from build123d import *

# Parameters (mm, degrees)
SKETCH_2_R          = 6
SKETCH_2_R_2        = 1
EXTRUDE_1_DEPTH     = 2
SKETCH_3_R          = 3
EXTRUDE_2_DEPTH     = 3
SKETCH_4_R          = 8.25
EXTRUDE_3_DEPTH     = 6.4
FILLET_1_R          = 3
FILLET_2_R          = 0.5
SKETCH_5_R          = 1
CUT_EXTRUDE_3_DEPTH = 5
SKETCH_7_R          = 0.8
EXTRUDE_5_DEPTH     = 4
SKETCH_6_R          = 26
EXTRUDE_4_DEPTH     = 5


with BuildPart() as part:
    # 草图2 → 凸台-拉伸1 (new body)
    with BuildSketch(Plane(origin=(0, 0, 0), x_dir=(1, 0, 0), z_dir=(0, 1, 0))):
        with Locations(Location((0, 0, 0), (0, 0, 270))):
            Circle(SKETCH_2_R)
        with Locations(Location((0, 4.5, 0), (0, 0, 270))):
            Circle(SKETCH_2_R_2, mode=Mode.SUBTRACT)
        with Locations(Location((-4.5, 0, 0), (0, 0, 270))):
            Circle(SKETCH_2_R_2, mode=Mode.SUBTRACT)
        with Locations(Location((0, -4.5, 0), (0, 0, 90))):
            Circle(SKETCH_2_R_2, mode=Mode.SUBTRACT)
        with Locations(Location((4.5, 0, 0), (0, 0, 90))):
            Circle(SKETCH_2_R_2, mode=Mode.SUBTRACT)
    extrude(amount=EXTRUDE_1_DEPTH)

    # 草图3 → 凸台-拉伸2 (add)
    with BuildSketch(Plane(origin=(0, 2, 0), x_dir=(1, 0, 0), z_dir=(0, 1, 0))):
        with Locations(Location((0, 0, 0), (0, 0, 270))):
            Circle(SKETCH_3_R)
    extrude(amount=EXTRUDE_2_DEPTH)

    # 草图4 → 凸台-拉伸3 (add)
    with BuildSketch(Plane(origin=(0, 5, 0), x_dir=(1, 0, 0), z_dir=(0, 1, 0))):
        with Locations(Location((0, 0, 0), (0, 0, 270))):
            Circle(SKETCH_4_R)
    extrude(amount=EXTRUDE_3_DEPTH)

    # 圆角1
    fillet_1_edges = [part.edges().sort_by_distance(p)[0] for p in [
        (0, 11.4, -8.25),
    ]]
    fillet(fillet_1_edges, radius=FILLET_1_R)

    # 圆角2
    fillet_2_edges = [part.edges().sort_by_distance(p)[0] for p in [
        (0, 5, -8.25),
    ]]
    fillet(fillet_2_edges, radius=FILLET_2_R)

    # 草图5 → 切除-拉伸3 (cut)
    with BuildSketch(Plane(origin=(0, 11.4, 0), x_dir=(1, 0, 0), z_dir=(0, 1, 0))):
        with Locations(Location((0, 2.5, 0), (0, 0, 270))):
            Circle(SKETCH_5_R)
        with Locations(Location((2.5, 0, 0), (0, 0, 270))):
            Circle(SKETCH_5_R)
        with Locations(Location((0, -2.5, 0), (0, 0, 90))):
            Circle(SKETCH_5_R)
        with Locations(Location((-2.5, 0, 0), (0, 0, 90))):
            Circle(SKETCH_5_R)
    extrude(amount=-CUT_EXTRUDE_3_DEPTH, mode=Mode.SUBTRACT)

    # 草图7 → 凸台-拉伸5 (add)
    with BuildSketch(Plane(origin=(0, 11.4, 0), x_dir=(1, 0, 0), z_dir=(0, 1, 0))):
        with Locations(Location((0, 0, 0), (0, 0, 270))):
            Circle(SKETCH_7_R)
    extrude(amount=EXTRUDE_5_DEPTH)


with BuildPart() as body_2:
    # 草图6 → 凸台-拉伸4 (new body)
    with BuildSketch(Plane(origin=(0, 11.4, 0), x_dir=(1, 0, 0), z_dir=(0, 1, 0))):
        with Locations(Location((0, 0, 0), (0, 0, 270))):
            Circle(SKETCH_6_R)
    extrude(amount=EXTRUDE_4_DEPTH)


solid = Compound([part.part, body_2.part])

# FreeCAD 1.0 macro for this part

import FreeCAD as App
import Part
import Sketcher
from FreeCAD import Vector


def edges_at(feature, points):
    """Names of the edges that pass closest to the given points."""
    edges = feature.Shape.Edges
    near = lambda p: min(range(len(edges)), key=lambda i: edges[i].distToShape(Part.Vertex(*p))[0])
    return sorted({f"Edge{near(p) + 1}" for p in points})

doc = App.newDocument("Part")
body = doc.addObject("PartDesign::Body", "Body")

sketch1 = doc.addObject("Sketcher::SketchObject", "Sketch")
body.addObject(sketch1)
sketch1.AttachmentSupport = (doc.XZ_Plane, [""])
sketch1.MapMode = "FlatFace"
sketch1.addGeometry([
    Part.Circle(Vector(0, 0, 0), Vector(0, 0, 1), 6),
    Part.Circle(Vector(0, -4.5, 0), Vector(0, 0, 1), 1),
    Part.Circle(Vector(-4.5, 0, 0), Vector(0, 0, 1), 1),
    Part.Circle(Vector(4.5, 0, 0), Vector(0, 0, 1), 1),
    Part.Circle(Vector(0, 4.5, 0), Vector(0, 0, 1), 1),
], False)
sketch1.addConstraint([
    Sketcher.Constraint("Coincident", 0, 3, -1, 1),
    Sketcher.Constraint("Equal", 1, 2),
    Sketcher.Constraint("Equal", 2, 3),
    Sketcher.Constraint("Equal", 3, 4),
    Sketcher.Constraint("Symmetric", 2, 3, 3, 3, -1, 1),
    Sketcher.Constraint("Symmetric", 1, 3, 4, 3, -1, 1),
    Sketcher.Constraint("PointOnObject", 1, 3, -2),
    Sketcher.Constraint("PointOnObject", 2, 3, -1),
    Sketcher.Constraint("Diameter", 0, 12.0),
    Sketcher.Constraint("Diameter", 1, 2.0),
    Sketcher.Constraint("DistanceX", 2, 3, 3, 3, 9.0),
    Sketcher.Constraint("DistanceY", 1, 3, 4, 3, 9.0),
])
pad1 = doc.addObject("PartDesign::Pad", "Pad")
body.addObject(pad1)
pad1.Profile = sketch1
pad1.Length = 2
pad1.Reversed = True

sketch2 = doc.addObject("Sketcher::SketchObject", "Sketch001")
body.addObject(sketch2)
sketch2.AttachmentSupport = (doc.XZ_Plane, [""])
sketch2.MapMode = "FlatFace"
sketch2.AttachmentOffset = App.Placement(Vector(0, 0, -2), App.Rotation())
sketch2.addGeometry(Part.Circle(Vector(0, 0, 0), Vector(0, 0, 1), 3), False)
sketch2.addConstraint([
    Sketcher.Constraint("Coincident", 0, 3, -1, 1),
    Sketcher.Constraint("Diameter", 0, 6.0),
])
pad2 = doc.addObject("PartDesign::Pad", "Pad001")
body.addObject(pad2)
pad2.Profile = sketch2
pad2.Length = 3
pad2.Reversed = True

sketch3 = doc.addObject("Sketcher::SketchObject", "Sketch002")
body.addObject(sketch3)
sketch3.AttachmentSupport = (doc.XZ_Plane, [""])
sketch3.MapMode = "FlatFace"
sketch3.AttachmentOffset = App.Placement(Vector(0, 0, -5), App.Rotation())
sketch3.addGeometry(Part.Circle(Vector(0, 0, 0), Vector(0, 0, 1), 8), False)
sketch3.addConstraint([
    Sketcher.Constraint("Coincident", 0, 3, -1, 1),
    Sketcher.Constraint("Diameter", 0, 16.5),
])
pad3 = doc.addObject("PartDesign::Pad", "Pad002")
body.addObject(pad3)
pad3.Profile = sketch3
pad3.Length = 6.4
pad3.Reversed = True
doc.recompute()

fillet = doc.addObject("PartDesign::Fillet", "Fillet")
body.addObject(fillet)
fillet.Base = (pad3, edges_at(pad3, [(0, 11.4, -8.25)]))
fillet.Radius = 3
doc.recompute()

fillet2 = doc.addObject("PartDesign::Fillet", "Fillet001")
body.addObject(fillet2)
fillet2.Base = (fillet, edges_at(fillet, [(0, 5, -8.25)]))
fillet2.Radius = 0.5

sketch4 = doc.addObject("Sketcher::SketchObject", "Sketch003")
body.addObject(sketch4)
sketch4.AttachmentSupport = (doc.XZ_Plane, [""])
sketch4.MapMode = "FlatFace"
sketch4.AttachmentOffset = App.Placement(Vector(0, 0, -11.4), App.Rotation())
sketch4.addGeometry([
    Part.Circle(Vector(0, -2.5, 0), Vector(0, 0, 1), 1),
    Part.Circle(Vector(2.5, 0, 0), Vector(0, 0, 1), 1),
    Part.Circle(Vector(0, 2.5, 0), Vector(0, 0, 1), 1),
    Part.Circle(Vector(-2.5, 0, 0), Vector(0, 0, 1), 1),
], False)
sketch4.addConstraint([
    Sketcher.Constraint("Equal", 0, 1),
    Sketcher.Constraint("Equal", 1, 2),
    Sketcher.Constraint("Equal", 2, 3),
    Sketcher.Constraint("Symmetric", 0, 3, 2, 3, -1, 1),
    Sketcher.Constraint("Symmetric", 1, 3, 3, 3, -1, 1),
    Sketcher.Constraint("PointOnObject", 0, 3, -2),
    Sketcher.Constraint("PointOnObject", 1, 3, -1),
    Sketcher.Constraint("Diameter", 0, 2.0),
    Sketcher.Constraint("DistanceY", 0, 3, 2, 3, 5.0),
    Sketcher.Constraint("DistanceX", 3, 3, 1, 3, 5.0),
])
pocket1 = doc.addObject("PartDesign::Pocket", "Pocket")
body.addObject(pocket1)
pocket1.Profile = sketch4
pocket1.Length = 5
pocket1.Reversed = True

sketch5 = doc.addObject("Sketcher::SketchObject", "Sketch004")
body.addObject(sketch5)
sketch5.AttachmentSupport = (doc.XZ_Plane, [""])
sketch5.MapMode = "FlatFace"
sketch5.AttachmentOffset = App.Placement(Vector(0, 0, -11.4), App.Rotation())
sketch5.addGeometry(Part.Circle(Vector(0, 0, 0), Vector(0, 0, 1), 0.8), False)
sketch5.addConstraint([
    Sketcher.Constraint("Coincident", 0, 3, -1, 1),
    Sketcher.Constraint("Diameter", 0, 1.6),
])
pad4 = doc.addObject("PartDesign::Pad", "Pad003")
body.addObject(pad4)
pad4.Profile = sketch5
pad4.Length = 4
pad4.Reversed = True
body2 = doc.addObject("PartDesign::Body", "Body001")

sketch6 = doc.addObject("Sketcher::SketchObject", "Sketch005")
body2.addObject(sketch6)
sketch6.AttachmentSupport = (doc.getObject("XZ_Plane001"), [""])
sketch6.MapMode = "FlatFace"
sketch6.AttachmentOffset = App.Placement(Vector(0, 0, -11.4), App.Rotation())
sketch6.addGeometry(Part.Circle(Vector(0, 0, 0), Vector(0, 0, 1), 26), False)
sketch6.addConstraint([
    Sketcher.Constraint("Coincident", 0, 3, -1, 1),
    Sketcher.Constraint("Diameter", 0, 52.0),
])
pad5 = doc.addObject("PartDesign::Pad", "Pad004")
body2.addObject(pad5)
pad5.Profile = sketch6
pad5.Length = 5
pad5.Reversed = True

doc.recompute()
